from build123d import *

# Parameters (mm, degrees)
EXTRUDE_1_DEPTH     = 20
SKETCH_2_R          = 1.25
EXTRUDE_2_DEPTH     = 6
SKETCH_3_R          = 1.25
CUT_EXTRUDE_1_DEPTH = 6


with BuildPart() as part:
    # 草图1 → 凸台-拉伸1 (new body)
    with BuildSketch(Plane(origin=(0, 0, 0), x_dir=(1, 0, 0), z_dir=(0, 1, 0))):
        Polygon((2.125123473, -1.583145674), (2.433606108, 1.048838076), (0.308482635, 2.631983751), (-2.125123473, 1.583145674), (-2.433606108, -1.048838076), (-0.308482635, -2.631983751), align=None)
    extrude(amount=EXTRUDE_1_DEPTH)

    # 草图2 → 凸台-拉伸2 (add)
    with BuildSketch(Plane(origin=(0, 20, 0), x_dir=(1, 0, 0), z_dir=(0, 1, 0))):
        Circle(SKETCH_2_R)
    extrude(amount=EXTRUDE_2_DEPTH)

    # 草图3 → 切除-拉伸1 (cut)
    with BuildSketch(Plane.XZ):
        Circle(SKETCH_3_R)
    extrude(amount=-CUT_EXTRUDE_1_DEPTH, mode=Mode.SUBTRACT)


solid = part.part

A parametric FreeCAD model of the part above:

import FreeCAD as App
import Part
import Sketcher

V = App.Vector
Q = App.Units.Quantity


def add_polygon(sketch, points):
    """Adds a closed chain of lines whose ends are joined by coincident constraints."""
    first, n = sketch.GeometryCount, len(points)
    for a, b in zip(points, points[1:] + points[:1]):
        sketch.addGeometry(Part.LineSegment(App.Vector(*a, 0), App.Vector(*b, 0)), False)
    for i in range(n):
        sketch.addConstraint(Sketcher.Constraint("Coincident", first + i, 2, first + (i + 1) % n, 1))

doc = App.newDocument("Part")
body = doc.addObject("PartDesign::Body", "Body")

sketch1 = body.newObject("Sketcher::SketchObject", "Sketch")
sketch1.AttachmentSupport = (doc.getObject("XZ_Plane"), [""])
sketch1.MapMode = "FlatFace"
add_polygon(sketch1, [(2.1, 1.6), (2.4, -1), (0.3, -2.6), (-2.1, -1.6), (-2.4, 1), (-0.3, 2.6)])
sketch1.addConstraint(Sketcher.Constraint("Symmetric", 0, 2, 3, 2, -1, 1))
sketch1.addConstraint(Sketcher.Constraint("Symmetric", 1, 2, 4, 2, -1, 1))
sketch1.addConstraint(Sketcher.Constraint("Symmetric", 2, 2, 5, 2, -1, 1))
sketch1.addConstraint(Sketcher.Constraint("Equal", 0, 1))
sketch1.addConstraint(Sketcher.Constraint("Equal", 1, 2))
sketch1.addConstraint(Sketcher.Constraint("Distance", 0, Q("2.65 mm")))
sketch1.addConstraint(Sketcher.Constraint("DistanceY", 0, 2, -1, 1, Q("1.048838 mm")))
sketch1.addConstraint(Sketcher.Constraint("DistanceY", 1, 2, 2, 2, Q("1.048838 mm")))
sketch1.addConstraint(Sketcher.Constraint("DistanceX", 2, 2, 0, 2, Q("4.55873 mm")))
pad1 = body.newObject("PartDesign::Pad", "Pad")
pad1.Profile = sketch1
pad1.Length = 20
pad1.Reversed = True

sketch2 = body.newObject("Sketcher::SketchObject", "Sketch001")
sketch2.AttachmentSupport = (doc.getObject("XZ_Plane"), [""])
sketch2.MapMode = "FlatFace"
sketch2.AttachmentOffset = App.Placement(V(0, 0, -20), App.Rotation())
sketch2.addGeometry(Part.Circle(V(0, 0, 0), V(0, 0, 1), 1.2), False)
sketch2.addConstraint(Sketcher.Constraint("Coincident", 0, 3, -1, 1))
sketch2.addConstraint(Sketcher.Constraint("Diameter", 0, Q("2.5 mm")))
pad2 = body.newObject("PartDesign::Pad", "Pad001")
pad2.Profile = sketch2
pad2.Length = 6
pad2.Reversed = True

sketch3 = body.newObject("Sketcher::SketchObject", "Sketch002")
sketch3.AttachmentSupport = (doc.getObject("XZ_Plane"), [""])
sketch3.MapMode = "FlatFace"
sketch3.addGeometry(Part.Circle(V(0, 0, 0), V(0, 0, 1), 1.2), False)
sketch3.addConstraint(Sketcher.Constraint("Coincident", 0, 3, -1, 1))
sketch3.addConstraint(Sketcher.Constraint("Diameter", 0, Q("2.5 mm")))
pocket1 = body.newObject("PartDesign::Pocket", "Pocket")
pocket1.Profile = sketch3
pocket1.Length = 6

doc.recompute()
